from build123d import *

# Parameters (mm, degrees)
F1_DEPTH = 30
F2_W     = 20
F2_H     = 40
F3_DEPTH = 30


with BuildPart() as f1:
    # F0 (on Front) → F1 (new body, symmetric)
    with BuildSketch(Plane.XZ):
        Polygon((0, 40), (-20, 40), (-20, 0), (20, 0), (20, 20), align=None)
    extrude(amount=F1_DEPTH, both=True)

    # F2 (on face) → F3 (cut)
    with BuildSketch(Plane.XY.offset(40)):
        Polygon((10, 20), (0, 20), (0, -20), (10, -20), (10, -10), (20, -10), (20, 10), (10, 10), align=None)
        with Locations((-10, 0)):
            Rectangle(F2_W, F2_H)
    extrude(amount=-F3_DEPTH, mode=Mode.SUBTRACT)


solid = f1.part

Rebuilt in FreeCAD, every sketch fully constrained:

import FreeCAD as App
import Part
import Sketcher

V = App.Vector


def add_polygon(sketch, points):
    """Adds a closed chain of lines whose ends are joined by coincident constraints."""
    first, n = sketch.GeometryCount, len(points)
    for a, b in zip(points, points[1:] + points[:1]):
        sketch.addGeometry(Part.LineSegment(App.Vector(*a, 0), App.Vector(*b, 0)), False)
    for i in range(n):
        sketch.addConstraint(Sketcher.Constraint("Coincident", first + i, 2, first + (i + 1) % n, 1))

doc = App.newDocument("Part")
body = doc.addObject("PartDesign::Body", "Body")

# Sketch on XZ plane
sketch1 = doc.addObject("Sketcher::SketchObject", "Sketch")
body.addObject(sketch1)
sketch1.AttachmentSupport = (doc.XZ_Plane, [""])
sketch1.MapMode = "FlatFace"
add_polygon(sketch1, [(0, 40), (-20, 40), (-20, 0), (20, 0), (20, 20)])  # lines 0-4
sketch1.addConstraint([
    Sketcher.Constraint("Horizontal", 0),
    Sketcher.Constraint("Vertical", 1),
    Sketcher.Constraint("Horizontal", 2),
    Sketcher.Constraint("Vertical", 3),
    Sketcher.Constraint("Symmetric", 1, 2, 2, 2, -1, 1),
    Sketcher.Constraint("PointOnObject", 4, 2, -2),
    Sketcher.Constraint("Equal", 2, 1),
    Sketcher.Constraint("Equal", 0, 3),
    Sketcher.Constraint("DistanceX", 0, 2, 0, 1, 20.0),
])
pad1 = doc.addObject("PartDesign::Pad", "Pad")
body.addObject(pad1)
pad1.Profile = sketch1
pad1.Length = 60
pad1.Midplane = True

# Sketch on XY plane
sketch2 = doc.addObject("Sketcher::SketchObject", "Sketch001")
body.addObject(sketch2)
sketch2.AttachmentSupport = (doc.XY_Plane, [""])
sketch2.MapMode = "FlatFace"
sketch2.AttachmentOffset = App.Placement(V(0, 0, 40), App.Rotation())
add_polygon(sketch2, [(10, 20), (-20, 20), (-20, -20), (10, -20), (10, -10), (20, -10), (20, 10), (10, 10)])  # lines 0-7
sketch2.addConstraint([
    Sketcher.Constraint("Horizontal", 0),
    Sketcher.Constraint("Vertical", 1),
    Sketcher.Constraint("Horizontal", 2),
    Sketcher.Constraint("Vertical", 3),
    Sketcher.Constraint("Horizontal", 4),
    Sketcher.Constraint("Vertical", 5),
    Sketcher.Constraint("Horizontal", 6),
    Sketcher.Constraint("Vertical", 7),
    Sketcher.Constraint("Symmetric", 3, 2, 6, 2, -1),
    Sketcher.Constraint("Equal", 6, 3),
    Sketcher.Constraint("Equal", 3, 7),
    Sketcher.Constraint("DistanceX", 0, 2, 0, 1, 30.0),
    Sketcher.Constraint("DistanceX", 4, 1, 4, 2, 10.0),
    Sketcher.Constraint("DistanceY", 1, 2, 1, 1, 40.0),
    Sketcher.Constraint("DistanceX", 0, 2, -1, 1, 20.0),
])
pocket1 = doc.addObject("PartDesign::Pocket", "Pocket")
body.addObject(pocket1)
pocket1.Profile = sketch2
pocket1.Length = 30

doc.recompute()
